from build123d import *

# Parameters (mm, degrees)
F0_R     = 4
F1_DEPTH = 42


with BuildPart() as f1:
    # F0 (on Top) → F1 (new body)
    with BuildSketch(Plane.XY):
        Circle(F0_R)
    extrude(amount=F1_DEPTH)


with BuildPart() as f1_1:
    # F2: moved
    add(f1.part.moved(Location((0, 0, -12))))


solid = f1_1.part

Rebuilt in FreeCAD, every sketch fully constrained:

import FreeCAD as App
import Part
import Sketcher

doc = App.newDocument("Part")
body = doc.addObject("PartDesign::Body", "Body")

# Sketch on XY plane
sketch1 = body.newObject("Sketcher::SketchObject", "Sketch")
sketch1.AttachmentSupport = (doc.getObject("XY_Plane"), [""])
sketch1.MapMode = "FlatFace"
sketch1.addGeometry(Part.Circle(App.Vector(0, 0, 0), App.Vector(0, 0, 1), 4), False)
sketch1.addConstraint(Sketcher.Constraint("Coincident", 0, 3, -1, 1))
sketch1.addConstraint(Sketcher.Constraint("Diameter", 0, 8.0))
pad1 = body.newObject("PartDesign::Pad", "Pad")
pad1.Profile = sketch1
pad1.Length = 42
body2 = doc.addObject("PartDesign::Body", "Body001")
doc.recompute()

body.Placement = App.Placement(App.Vector(0, 0, -12), App.Rotation(App.Vector(0, 0, 1), 0))
boolean = body2.newObject("PartDesign::Boolean", "Boolean")
boolean.Type = "Fuse"
boolean.addObjects([body])

doc.recompute()
